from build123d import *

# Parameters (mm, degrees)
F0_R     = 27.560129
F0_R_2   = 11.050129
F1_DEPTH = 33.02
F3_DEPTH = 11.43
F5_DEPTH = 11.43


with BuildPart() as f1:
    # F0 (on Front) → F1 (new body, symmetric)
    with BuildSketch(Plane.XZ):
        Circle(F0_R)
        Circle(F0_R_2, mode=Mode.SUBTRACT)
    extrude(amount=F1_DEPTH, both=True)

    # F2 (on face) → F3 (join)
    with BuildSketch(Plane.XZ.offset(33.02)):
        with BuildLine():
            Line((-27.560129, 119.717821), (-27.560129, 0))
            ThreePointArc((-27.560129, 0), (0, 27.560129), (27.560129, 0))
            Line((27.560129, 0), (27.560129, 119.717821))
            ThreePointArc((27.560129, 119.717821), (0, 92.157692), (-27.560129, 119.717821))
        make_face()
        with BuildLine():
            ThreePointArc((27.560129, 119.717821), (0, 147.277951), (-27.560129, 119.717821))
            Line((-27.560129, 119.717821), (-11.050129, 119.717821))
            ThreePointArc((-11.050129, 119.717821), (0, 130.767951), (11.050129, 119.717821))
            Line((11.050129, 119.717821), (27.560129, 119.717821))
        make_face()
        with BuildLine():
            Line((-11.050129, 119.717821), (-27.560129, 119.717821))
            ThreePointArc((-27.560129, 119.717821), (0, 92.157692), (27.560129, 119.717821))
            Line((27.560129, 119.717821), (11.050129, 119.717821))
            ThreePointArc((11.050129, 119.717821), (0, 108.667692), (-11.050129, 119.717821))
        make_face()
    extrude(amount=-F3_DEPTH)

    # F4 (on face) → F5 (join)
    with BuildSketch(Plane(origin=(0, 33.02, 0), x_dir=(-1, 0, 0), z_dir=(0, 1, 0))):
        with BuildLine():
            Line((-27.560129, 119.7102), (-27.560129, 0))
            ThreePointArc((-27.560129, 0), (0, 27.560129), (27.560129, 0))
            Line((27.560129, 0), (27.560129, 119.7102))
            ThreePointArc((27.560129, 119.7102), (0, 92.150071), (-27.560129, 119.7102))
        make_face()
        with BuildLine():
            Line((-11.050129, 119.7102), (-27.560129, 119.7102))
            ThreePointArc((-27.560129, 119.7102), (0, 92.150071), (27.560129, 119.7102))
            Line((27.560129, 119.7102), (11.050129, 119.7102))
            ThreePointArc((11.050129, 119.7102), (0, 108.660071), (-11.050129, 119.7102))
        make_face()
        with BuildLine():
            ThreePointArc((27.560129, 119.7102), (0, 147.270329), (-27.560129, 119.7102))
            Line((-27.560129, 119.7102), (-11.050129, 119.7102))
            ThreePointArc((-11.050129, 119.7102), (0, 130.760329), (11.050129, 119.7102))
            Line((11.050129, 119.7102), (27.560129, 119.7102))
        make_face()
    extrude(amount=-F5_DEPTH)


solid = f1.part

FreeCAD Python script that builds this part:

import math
import FreeCAD as App
import Part
import Sketcher
from FreeCAD import Vector
Q = App.Units.Quantity

doc = App.newDocument("Part")
params = doc.addObject("Spreadsheet::Sheet", "Params")
for row, (alias, value) in enumerate([
    ("pad1_length", "2.6 in"),
    ("pad2_length", "0.45 in"),
    ("sketch3_height", "4.713 in"),
    ("pad3_length", "0.45 in"),
], start=1):
    params.set(f"A{row}", alias)
    params.set(f"B{row}", "=" + value)
    params.setAlias(f"B{row}", alias)

body = doc.addObject("PartDesign::Body", "Body")

sketch1 = body.newObject("Sketcher::SketchObject", "Sketch")
sketch1.AttachmentSupport = (doc.getObject("XZ_Plane"), [""])
sketch1.MapMode = "FlatFace"
sketch1.addGeometry(Part.Circle(Vector(0, 0, 0), Vector(0, 0, 1), 28), False)
sketch1.addGeometry(Part.Circle(Vector(0, 0, 0), Vector(0, 0, 1), 11), False)
sketch1.addConstraint(Sketcher.Constraint("Coincident", 0, 3, -1, 1))
sketch1.addConstraint(Sketcher.Constraint("Coincident", 1, 3, -1, 1))
sketch1.addConstraint(Sketcher.Constraint("Diameter", 1, 22.100258))
sketch1.addConstraint(Sketcher.Constraint("Diameter", 0, 55.120258))
pad1 = body.newObject("PartDesign::Pad", "Pad")
pad1.Profile = sketch1
pad1.setExpression("Length", "Params.pad1_length")
pad1.Midplane = True

sketch2 = body.newObject("Sketcher::SketchObject", "Sketch001")
sketch2.AttachmentSupport = (doc.getObject("XZ_Plane"), [""])
sketch2.MapMode = "FlatFace"
sketch2.AttachmentOffset = App.Placement(Vector(0, 0, 1.3 * 25.4), App.Rotation())
sketch2.addGeometry(Part.LineSegment(Vector(-28, 120, 0), Vector(-28, 0, 0)), False)
sketch2.addGeometry(Part.ArcOfCircle(Part.Circle(Vector(0, 0, 0), Vector(0, 0, 1), 28), math.radians(0), math.radians(180)), False)
sketch2.addGeometry(Part.LineSegment(Vector(28, 0, 0), Vector(28, 120, 0)), False)
sketch2.addGeometry(Part.ArcOfCircle(Part.Circle(Vector(0, 120, 0), Vector(0, 0, 1), 28), math.radians(0), math.radians(180)), False)
sketch2.addGeometry(Part.ArcOfCircle(Part.Circle(Vector(0, 120, 0), Vector(0, 0, 1), 11), math.radians(180), math.radians(360)), False)
sketch2.addGeometry(Part.ArcOfCircle(Part.Circle(Vector(0, 120, 0), Vector(0, 0, 1), 11), math.radians(0), math.radians(180)), False)
sketch2.addConstraint(Sketcher.Constraint("Tangent", 0, 2, 1, 2))
sketch2.addConstraint(Sketcher.Constraint("Tangent", 1, 1, 2, 1))
sketch2.addConstraint(Sketcher.Constraint("Tangent", 2, 2, 3, 1))
sketch2.addConstraint(Sketcher.Constraint("Tangent", 3, 2, 0, 1))
sketch2.addConstraint(Sketcher.Constraint("Tangent", 4, 1, 5, 2))
sketch2.addConstraint(Sketcher.Constraint("Coincident", 5, 1, 4, 2))
sketch2.addConstraint(Sketcher.Constraint("Vertical", 0))
sketch2.addConstraint(Sketcher.Constraint("Vertical", 2))
sketch2.addConstraint(Sketcher.Constraint("Coincident", 1, 3, -1, 1))
sketch2.addConstraint(Sketcher.Constraint("Coincident", 4, 3, 3, 3))
sketch2.addConstraint(Sketcher.Constraint("Horizontal", 3, 2, 4, 1))
sketch2.addConstraint(Sketcher.Constraint("Horizontal", 4, 1, 5, 1))
sketch2.addConstraint(Sketcher.Constraint("DistanceX", 3, 2, 4, 1, Q("0.65 in")))
sketch2.addConstraint(Sketcher.Constraint("DistanceY", 0, 2, 0, 1, Q("4.7133 in")))
sketch2.addConstraint(Sketcher.Constraint("Radius", 1, 27.560129))
pad2 = body.newObject("PartDesign::Pad", "Pad001")
pad2.Profile = sketch2
pad2.setExpression("Length", "Params.pad2_length")
pad2.Reversed = True

sketch3 = body.newObject("Sketcher::SketchObject", "Sketch002")
sketch3.AttachmentSupport = (doc.getObject("XZ_Plane"), [""])
sketch3.MapMode = "FlatFace"
sketch3.AttachmentOffset = App.Placement(Vector(0, 0, -1.3 * 25.4), App.Rotation())
sketch3.addGeometry(Part.LineSegment(Vector(28, 120, 0), Vector(28, 0, 0)), False)
sketch3.addGeometry(Part.ArcOfCircle(Part.Circle(Vector(0, 0, 0), Vector(0, 0, 1), 28), math.radians(0), math.radians(180)), False)
sketch3.addGeometry(Part.LineSegment(Vector(-28, 0, 0), Vector(-28, 120, 0)), False)
sketch3.addGeometry(Part.ArcOfCircle(Part.Circle(Vector(0, 120, 0), Vector(0, 0, 1), 28), math.radians(0), math.radians(180)), False)
sketch3.addGeometry(Part.Circle(Vector(0, 120, 0), Vector(0, 0, 1), 11), False)
sketch3.addConstraint(Sketcher.Constraint("Tangent", 0, 2, 1, 1))
sketch3.addConstraint(Sketcher.Constraint("Tangent", 1, 2, 2, 1))
sketch3.addConstraint(Sketcher.Constraint("Tangent", 2, 2, 3, 2))
sketch3.addConstraint(Sketcher.Constraint("Tangent", 3, 1, 0, 1))
sketch3.addConstraint(Sketcher.Constraint("Vertical", 0))
sketch3.addConstraint(Sketcher.Constraint("Vertical", 2))
sketch3.addConstraint(Sketcher.Constraint("Coincident", 1, 3, -1, 1))
sketch3.addConstraint(Sketcher.Constraint("Coincident", 4, 3, 3, 3))
sketch3.addConstraint(Sketcher.Constraint("DistanceY", 0, 2, 0, 1, Q("4.713 in")))
sketch3.addConstraint(Sketcher.Constraint("Diameter", 4, 22.100258))
sketch3.addConstraint(Sketcher.Constraint("Radius", 1, 27.560129))
sketch3.setExpression("Constraints[8]", "Params.sketch3_height")
pad3 = body.newObject("PartDesign::Pad", "Pad002")
pad3.Profile = sketch3
pad3.setExpression("Length", "Params.pad3_length")

doc.recompute()
